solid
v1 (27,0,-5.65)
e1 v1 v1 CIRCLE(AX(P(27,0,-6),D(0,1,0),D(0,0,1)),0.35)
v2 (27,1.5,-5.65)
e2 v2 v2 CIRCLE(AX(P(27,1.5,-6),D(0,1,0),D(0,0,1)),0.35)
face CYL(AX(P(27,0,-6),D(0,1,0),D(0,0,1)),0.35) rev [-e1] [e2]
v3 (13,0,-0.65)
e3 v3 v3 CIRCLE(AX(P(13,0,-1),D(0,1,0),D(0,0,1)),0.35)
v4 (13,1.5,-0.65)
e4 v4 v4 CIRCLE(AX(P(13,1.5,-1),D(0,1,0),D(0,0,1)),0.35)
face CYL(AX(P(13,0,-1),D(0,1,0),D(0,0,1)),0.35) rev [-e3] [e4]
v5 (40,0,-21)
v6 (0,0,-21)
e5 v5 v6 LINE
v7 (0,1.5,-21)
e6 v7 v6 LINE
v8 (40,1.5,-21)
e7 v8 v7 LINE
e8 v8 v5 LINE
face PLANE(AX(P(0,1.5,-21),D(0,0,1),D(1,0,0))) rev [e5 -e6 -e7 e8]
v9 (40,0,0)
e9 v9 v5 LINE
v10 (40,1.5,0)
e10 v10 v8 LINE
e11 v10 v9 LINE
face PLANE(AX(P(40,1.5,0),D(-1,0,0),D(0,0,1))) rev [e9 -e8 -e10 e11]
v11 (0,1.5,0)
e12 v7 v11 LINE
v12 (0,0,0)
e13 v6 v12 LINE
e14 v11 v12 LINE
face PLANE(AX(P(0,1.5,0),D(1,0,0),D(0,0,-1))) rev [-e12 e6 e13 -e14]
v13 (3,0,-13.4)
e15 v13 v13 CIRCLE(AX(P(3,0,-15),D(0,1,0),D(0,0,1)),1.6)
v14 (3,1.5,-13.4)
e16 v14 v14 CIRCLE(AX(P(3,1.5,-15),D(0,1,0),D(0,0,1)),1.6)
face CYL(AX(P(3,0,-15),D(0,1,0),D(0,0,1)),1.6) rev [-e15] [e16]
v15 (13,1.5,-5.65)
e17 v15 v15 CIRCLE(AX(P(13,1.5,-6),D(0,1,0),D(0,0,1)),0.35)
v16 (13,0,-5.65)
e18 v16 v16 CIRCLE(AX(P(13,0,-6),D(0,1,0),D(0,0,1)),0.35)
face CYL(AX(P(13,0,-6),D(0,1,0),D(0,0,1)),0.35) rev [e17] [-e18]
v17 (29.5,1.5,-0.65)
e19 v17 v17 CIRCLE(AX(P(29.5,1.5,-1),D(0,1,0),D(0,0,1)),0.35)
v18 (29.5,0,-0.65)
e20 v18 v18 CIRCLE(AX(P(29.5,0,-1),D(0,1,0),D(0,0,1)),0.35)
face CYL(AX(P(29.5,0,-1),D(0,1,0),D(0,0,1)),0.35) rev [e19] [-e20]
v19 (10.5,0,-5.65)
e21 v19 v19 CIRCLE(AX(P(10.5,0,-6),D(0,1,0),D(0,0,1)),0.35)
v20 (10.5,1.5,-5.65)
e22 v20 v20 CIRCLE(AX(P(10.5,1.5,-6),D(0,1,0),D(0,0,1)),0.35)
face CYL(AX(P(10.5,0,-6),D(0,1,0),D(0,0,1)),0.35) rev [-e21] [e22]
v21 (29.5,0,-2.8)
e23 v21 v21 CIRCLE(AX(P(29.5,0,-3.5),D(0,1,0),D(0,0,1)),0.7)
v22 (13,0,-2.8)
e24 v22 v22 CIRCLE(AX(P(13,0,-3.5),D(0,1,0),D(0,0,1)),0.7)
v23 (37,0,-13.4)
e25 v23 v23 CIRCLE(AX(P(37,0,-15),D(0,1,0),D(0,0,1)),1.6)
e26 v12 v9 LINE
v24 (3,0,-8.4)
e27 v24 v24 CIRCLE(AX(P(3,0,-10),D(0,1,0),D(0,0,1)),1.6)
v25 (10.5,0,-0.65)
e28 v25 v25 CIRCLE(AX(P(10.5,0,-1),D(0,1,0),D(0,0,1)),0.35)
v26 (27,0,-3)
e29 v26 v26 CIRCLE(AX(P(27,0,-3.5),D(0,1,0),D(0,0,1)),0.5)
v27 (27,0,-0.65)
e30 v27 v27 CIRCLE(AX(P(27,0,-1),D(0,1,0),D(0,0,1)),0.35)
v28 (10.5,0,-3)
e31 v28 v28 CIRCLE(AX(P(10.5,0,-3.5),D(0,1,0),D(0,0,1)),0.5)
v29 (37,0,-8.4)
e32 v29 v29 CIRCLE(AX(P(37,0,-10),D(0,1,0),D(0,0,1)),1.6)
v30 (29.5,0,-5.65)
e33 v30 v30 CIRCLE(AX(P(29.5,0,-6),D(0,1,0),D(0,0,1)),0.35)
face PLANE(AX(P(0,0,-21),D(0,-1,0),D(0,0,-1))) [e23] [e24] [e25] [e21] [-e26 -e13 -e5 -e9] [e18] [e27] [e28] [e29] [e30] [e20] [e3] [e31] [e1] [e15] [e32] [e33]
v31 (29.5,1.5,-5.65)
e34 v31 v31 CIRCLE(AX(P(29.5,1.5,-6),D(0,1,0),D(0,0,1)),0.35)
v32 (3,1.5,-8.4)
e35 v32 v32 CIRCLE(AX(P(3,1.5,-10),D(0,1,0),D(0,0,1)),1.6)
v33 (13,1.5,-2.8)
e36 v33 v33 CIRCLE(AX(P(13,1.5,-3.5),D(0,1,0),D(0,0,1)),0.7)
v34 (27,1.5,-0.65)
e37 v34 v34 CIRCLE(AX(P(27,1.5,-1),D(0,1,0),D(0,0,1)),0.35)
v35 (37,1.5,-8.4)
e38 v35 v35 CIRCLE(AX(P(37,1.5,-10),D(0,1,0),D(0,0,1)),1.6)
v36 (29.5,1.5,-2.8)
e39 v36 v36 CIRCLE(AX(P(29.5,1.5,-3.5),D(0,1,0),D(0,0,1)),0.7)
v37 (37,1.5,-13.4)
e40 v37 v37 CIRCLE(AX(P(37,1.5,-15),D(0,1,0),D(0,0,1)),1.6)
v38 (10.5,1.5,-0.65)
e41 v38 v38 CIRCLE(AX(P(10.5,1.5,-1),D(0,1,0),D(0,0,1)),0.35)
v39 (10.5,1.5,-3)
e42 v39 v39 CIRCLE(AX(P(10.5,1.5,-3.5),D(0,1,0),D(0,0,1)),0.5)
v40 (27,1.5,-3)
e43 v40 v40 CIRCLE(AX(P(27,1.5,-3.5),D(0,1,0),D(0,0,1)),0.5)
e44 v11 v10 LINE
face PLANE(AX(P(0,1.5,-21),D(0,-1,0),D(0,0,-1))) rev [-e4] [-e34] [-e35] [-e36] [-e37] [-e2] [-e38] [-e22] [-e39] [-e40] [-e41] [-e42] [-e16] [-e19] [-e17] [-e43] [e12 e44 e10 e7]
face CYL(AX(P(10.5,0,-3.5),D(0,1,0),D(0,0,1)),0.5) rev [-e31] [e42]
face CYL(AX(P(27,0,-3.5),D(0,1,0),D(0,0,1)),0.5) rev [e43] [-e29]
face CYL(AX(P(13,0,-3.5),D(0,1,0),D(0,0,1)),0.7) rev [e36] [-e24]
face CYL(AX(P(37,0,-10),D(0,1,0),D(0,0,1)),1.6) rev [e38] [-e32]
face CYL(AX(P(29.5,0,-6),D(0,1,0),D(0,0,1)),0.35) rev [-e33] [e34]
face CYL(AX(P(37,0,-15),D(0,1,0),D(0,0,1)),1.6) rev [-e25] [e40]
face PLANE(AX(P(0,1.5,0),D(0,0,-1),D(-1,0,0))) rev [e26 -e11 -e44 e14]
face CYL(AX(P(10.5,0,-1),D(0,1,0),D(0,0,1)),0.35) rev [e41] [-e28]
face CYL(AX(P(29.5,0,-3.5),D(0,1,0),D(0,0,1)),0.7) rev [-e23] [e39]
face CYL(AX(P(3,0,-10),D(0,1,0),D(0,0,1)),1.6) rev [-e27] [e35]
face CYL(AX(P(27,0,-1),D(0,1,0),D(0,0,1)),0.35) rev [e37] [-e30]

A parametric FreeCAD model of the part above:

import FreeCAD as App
import Part
import Sketcher
Q = App.Units.Quantity

doc = App.newDocument("Part")
body = doc.addObject("PartDesign::Body", "Body")

# Sketch on XZ plane
sketch1 = body.newObject("Sketcher::SketchObject", "Sketch")
sketch1.AttachmentSupport = (doc.getObject("XZ_Plane"), [""])
sketch1.MapMode = "FlatFace"
sketch1.addGeometry(Part.LineSegment(App.Vector(0, -21, 0), App.Vector(0, 0, 0)), False)
sketch1.addGeometry(Part.LineSegment(App.Vector(0, 0, 0), App.Vector(40, 0, 0)), False)
sketch1.addGeometry(Part.LineSegment(App.Vector(40, 0, 0), App.Vector(40, -21, 0)), False)
sketch1.addGeometry(Part.LineSegment(App.Vector(40, -21, 0), App.Vector(0, -21, 0)), False)
sketch1.addConstraint(Sketcher.Constraint("Coincident", 0, 2, 1, 1))
sketch1.addConstraint(Sketcher.Constraint("Coincident", 1, 2, 2, 1))
sketch1.addConstraint(Sketcher.Constraint("Coincident", 2, 2, 3, 1))
sketch1.addConstraint(Sketcher.Constraint("Coincident", 3, 2, 0, 1))
sketch1.addConstraint(Sketcher.Constraint("Vertical", 0))
sketch1.addConstraint(Sketcher.Constraint("Horizontal", 1))
sketch1.addConstraint(Sketcher.Constraint("Vertical", 2))
sketch1.addConstraint(Sketcher.Constraint("Horizontal", 3))
sketch1.addConstraint(Sketcher.Constraint("Coincident", 0, 2, -1, 1))
sketch1.addConstraint(Sketcher.Constraint("DistanceX", 1, 1, 1, 2, Q("40 mm")))
sketch1.addConstraint(Sketcher.Constraint("DistanceY", 0, 1, 0, 2, Q("21 mm")))
pad1 = body.newObject("PartDesign::Pad", "Pad")
pad1.Profile = sketch1
pad1.Length = 1.5
pad1.Reversed = True

# Sketch on XZ plane
sketch2 = body.newObject("Sketcher::SketchObject", "Sketch001")
sketch2.AttachmentSupport = (doc.getObject("XZ_Plane"), [""])
sketch2.MapMode = "FlatFace"
sketch2.AttachmentOffset = App.Placement(App.Vector(0, 0, -1.5), App.Rotation())
sketch2.addGeometry(Part.Circle(App.Vector(29.5, -3.5, 0), App.Vector(0, 0, 1), 0.7), False)
sketch2.addGeometry(Part.Circle(App.Vector(27, -3.5, 0), App.Vector(0, 0, 1), 0.5), False)
sketch2.addGeometry(Part.Circle(App.Vector(13, -3.5, 0), App.Vector(0, 0, 1), 0.7), False)
sketch2.addGeometry(Part.Circle(App.Vector(10.5, -3.5, 0), App.Vector(0, 0, 1), 0.5), False)
sketch2.addGeometry(Part.Circle(App.Vector(27, -6, 0), App.Vector(0, 0, 1), 0.35), False)
sketch2.addGeometry(Part.Circle(App.Vector(29.5, -6, 0), App.Vector(0, 0, 1), 0.35), False)
sketch2.addGeometry(Part.Circle(App.Vector(29.5, -1, 0), App.Vector(0, 0, 1), 0.35), False)
sketch2.addGeometry(Part.Circle(App.Vector(27, -1, 0), App.Vector(0, 0, 1), 0.35), False)
sketch2.addGeometry(Part.Circle(App.Vector(13, -6, 0), App.Vector(0, 0, 1), 0.35), False)
sketch2.addGeometry(Part.Circle(App.Vector(10.5, -6, 0), App.Vector(0, 0, 1), 0.35), False)
sketch2.addGeometry(Part.Circle(App.Vector(10.5, -1, 0), App.Vector(0, 0, 1), 0.35), False)
sketch2.addGeometry(Part.Circle(App.Vector(13, -1, 0), App.Vector(0, 0, 1), 0.35), False)
sketch2.addGeometry(Part.Circle(App.Vector(3, -10, 0), App.Vector(0, 0, 1), 1.6), False)
sketch2.addGeometry(Part.Circle(App.Vector(37, -10, 0), App.Vector(0, 0, 1), 1.6), False)
sketch2.addGeometry(Part.Circle(App.Vector(3, -15, 0), App.Vector(0, 0, 1), 1.6), False)
sketch2.addGeometry(Part.Circle(App.Vector(37, -15, 0), App.Vector(0, 0, 1), 1.6), False)
sketch2.addConstraint(Sketcher.Constraint("Equal", 0, 2))
sketch2.addConstraint(Sketcher.Constraint("Equal", 1, 3))
sketch2.addConstraint(Sketcher.Constraint("Equal", 4, 5))
sketch2.addConstraint(Sketcher.Constraint("Equal", 5, 6))
sketch2.addConstraint(Sketcher.Constraint("Equal", 6, 7))
sketch2.addConstraint(Sketcher.Constraint("Equal", 7, 8))
sketch2.addConstraint(Sketcher.Constraint("Equal", 8, 9))
sketch2.addConstraint(Sketcher.Constraint("Equal", 9, 10))
sketch2.addConstraint(Sketcher.Constraint("Equal", 10, 11))
sketch2.addConstraint(Sketcher.Constraint("Equal", 12, 13))
sketch2.addConstraint(Sketcher.Constraint("Equal", 13, 14))
sketch2.addConstraint(Sketcher.Constraint("Equal", 14, 15))
sketch2.addConstraint(Sketcher.Constraint("Horizontal", 0, 3, 1, 3))
sketch2.addConstraint(Sketcher.Constraint("Horizontal", 1, 3, 2, 3))
sketch2.addConstraint(Sketcher.Constraint("Horizontal", 2, 3, 3, 3))
sketch2.addConstraint(Sketcher.Constraint("Horizontal", 4, 3, 5, 3))
sketch2.addConstraint(Sketcher.Constraint("Horizontal", 6, 3, 7, 3))
sketch2.addConstraint(Sketcher.Constraint("Horizontal", 5, 3, 8, 3))
sketch2.addConstraint(Sketcher.Constraint("Horizontal", 8, 3, 9, 3))
sketch2.addConstraint(Sketcher.Constraint("Horizontal", 7, 3, 10, 3))
sketch2.addConstraint(Sketcher.Constraint("Horizontal", 10, 3, 11, 3))
sketch2.addConstraint(Sketcher.Constraint("Horizontal", 12, 3, 13, 3))
sketch2.addConstraint(Sketcher.Constraint("Horizontal", 14, 3, 15, 3))
sketch2.addConstraint(Sketcher.Constraint("Vertical", 1, 3, 4, 3))
sketch2.addConstraint(Sketcher.Constraint("Vertical", 0, 3, 5, 3))
sketch2.addConstraint(Sketcher.Constraint("Vertical", 5, 3, 6, 3))
sketch2.addConstraint(Sketcher.Constraint("Vertical", 4, 3, 7, 3))
sketch2.addConstraint(Sketcher.Constraint("Vertical", 2, 3, 8, 3))
sketch2.addConstraint(Sketcher.Constraint("Vertical", 3, 3, 9, 3))
sketch2.addConstraint(Sketcher.Constraint("Vertical", 9, 3, 10, 3))
sketch2.addConstraint(Sketcher.Constraint("Vertical", 8, 3, 11, 3))
sketch2.addConstraint(Sketcher.Constraint("Vertical", 12, 3, 14, 3))
sketch2.addConstraint(Sketcher.Constraint("Vertical", 13, 3, 15, 3))
sketch2.addConstraint(Sketcher.Constraint("Diameter", 1, Q("1 mm")))
sketch2.addConstraint(Sketcher.Constraint("Diameter", 0, Q("1.4 mm")))
sketch2.addConstraint(Sketcher.Constraint("Diameter", 4, Q("0.7 mm")))
sketch2.addConstraint(Sketcher.Constraint("Diameter", 12, Q("3.2 mm")))
sketch2.addConstraint(Sketcher.Constraint("DistanceX", -1, 1, 1, 3, Q("27 mm")))
sketch2.addConstraint(Sketcher.Constraint("DistanceX", -1, 1, 2, 3, Q("13 mm")))
sketch2.addConstraint(Sketcher.Constraint("DistanceY", 4, 3, -1, 1, Q("6 mm")))
sketch2.addConstraint(Sketcher.Constraint("DistanceY", 6, 3, -1, 1, Q("1 mm")))
sketch2.addConstraint(Sketcher.Constraint("DistanceX", -1, 1, 12, 3, Q("3 mm")))
sketch2.addConstraint(Sketcher.Constraint("DistanceY", 12, 3, -1, 1, Q("10 mm")))
sketch2.addConstraint(Sketcher.Constraint("DistanceX", -1, 1, 13, 3, Q("37 mm")))
sketch2.addConstraint(Sketcher.Constraint("DistanceY", 14, 3, -1, 1, Q("15 mm")))
sketch2.addConstraint(Sketcher.Constraint("DistanceX", 3, 3, 0, 3, Q("19 mm")))
sketch2.addConstraint(Sketcher.Constraint("DistanceX", -1, 1, 0, 3, Q("29.5 mm")))
sketch2.addConstraint(Sketcher.Constraint("DistanceY", 0, 3, -1, 1, Q("3.5 mm")))
pocket1 = body.newObject("PartDesign::Pocket", "Pocket")
pocket1.Profile = sketch2
pocket1.Type = "ThroughAll"
pocket1.Reversed = True

doc.recompute()
